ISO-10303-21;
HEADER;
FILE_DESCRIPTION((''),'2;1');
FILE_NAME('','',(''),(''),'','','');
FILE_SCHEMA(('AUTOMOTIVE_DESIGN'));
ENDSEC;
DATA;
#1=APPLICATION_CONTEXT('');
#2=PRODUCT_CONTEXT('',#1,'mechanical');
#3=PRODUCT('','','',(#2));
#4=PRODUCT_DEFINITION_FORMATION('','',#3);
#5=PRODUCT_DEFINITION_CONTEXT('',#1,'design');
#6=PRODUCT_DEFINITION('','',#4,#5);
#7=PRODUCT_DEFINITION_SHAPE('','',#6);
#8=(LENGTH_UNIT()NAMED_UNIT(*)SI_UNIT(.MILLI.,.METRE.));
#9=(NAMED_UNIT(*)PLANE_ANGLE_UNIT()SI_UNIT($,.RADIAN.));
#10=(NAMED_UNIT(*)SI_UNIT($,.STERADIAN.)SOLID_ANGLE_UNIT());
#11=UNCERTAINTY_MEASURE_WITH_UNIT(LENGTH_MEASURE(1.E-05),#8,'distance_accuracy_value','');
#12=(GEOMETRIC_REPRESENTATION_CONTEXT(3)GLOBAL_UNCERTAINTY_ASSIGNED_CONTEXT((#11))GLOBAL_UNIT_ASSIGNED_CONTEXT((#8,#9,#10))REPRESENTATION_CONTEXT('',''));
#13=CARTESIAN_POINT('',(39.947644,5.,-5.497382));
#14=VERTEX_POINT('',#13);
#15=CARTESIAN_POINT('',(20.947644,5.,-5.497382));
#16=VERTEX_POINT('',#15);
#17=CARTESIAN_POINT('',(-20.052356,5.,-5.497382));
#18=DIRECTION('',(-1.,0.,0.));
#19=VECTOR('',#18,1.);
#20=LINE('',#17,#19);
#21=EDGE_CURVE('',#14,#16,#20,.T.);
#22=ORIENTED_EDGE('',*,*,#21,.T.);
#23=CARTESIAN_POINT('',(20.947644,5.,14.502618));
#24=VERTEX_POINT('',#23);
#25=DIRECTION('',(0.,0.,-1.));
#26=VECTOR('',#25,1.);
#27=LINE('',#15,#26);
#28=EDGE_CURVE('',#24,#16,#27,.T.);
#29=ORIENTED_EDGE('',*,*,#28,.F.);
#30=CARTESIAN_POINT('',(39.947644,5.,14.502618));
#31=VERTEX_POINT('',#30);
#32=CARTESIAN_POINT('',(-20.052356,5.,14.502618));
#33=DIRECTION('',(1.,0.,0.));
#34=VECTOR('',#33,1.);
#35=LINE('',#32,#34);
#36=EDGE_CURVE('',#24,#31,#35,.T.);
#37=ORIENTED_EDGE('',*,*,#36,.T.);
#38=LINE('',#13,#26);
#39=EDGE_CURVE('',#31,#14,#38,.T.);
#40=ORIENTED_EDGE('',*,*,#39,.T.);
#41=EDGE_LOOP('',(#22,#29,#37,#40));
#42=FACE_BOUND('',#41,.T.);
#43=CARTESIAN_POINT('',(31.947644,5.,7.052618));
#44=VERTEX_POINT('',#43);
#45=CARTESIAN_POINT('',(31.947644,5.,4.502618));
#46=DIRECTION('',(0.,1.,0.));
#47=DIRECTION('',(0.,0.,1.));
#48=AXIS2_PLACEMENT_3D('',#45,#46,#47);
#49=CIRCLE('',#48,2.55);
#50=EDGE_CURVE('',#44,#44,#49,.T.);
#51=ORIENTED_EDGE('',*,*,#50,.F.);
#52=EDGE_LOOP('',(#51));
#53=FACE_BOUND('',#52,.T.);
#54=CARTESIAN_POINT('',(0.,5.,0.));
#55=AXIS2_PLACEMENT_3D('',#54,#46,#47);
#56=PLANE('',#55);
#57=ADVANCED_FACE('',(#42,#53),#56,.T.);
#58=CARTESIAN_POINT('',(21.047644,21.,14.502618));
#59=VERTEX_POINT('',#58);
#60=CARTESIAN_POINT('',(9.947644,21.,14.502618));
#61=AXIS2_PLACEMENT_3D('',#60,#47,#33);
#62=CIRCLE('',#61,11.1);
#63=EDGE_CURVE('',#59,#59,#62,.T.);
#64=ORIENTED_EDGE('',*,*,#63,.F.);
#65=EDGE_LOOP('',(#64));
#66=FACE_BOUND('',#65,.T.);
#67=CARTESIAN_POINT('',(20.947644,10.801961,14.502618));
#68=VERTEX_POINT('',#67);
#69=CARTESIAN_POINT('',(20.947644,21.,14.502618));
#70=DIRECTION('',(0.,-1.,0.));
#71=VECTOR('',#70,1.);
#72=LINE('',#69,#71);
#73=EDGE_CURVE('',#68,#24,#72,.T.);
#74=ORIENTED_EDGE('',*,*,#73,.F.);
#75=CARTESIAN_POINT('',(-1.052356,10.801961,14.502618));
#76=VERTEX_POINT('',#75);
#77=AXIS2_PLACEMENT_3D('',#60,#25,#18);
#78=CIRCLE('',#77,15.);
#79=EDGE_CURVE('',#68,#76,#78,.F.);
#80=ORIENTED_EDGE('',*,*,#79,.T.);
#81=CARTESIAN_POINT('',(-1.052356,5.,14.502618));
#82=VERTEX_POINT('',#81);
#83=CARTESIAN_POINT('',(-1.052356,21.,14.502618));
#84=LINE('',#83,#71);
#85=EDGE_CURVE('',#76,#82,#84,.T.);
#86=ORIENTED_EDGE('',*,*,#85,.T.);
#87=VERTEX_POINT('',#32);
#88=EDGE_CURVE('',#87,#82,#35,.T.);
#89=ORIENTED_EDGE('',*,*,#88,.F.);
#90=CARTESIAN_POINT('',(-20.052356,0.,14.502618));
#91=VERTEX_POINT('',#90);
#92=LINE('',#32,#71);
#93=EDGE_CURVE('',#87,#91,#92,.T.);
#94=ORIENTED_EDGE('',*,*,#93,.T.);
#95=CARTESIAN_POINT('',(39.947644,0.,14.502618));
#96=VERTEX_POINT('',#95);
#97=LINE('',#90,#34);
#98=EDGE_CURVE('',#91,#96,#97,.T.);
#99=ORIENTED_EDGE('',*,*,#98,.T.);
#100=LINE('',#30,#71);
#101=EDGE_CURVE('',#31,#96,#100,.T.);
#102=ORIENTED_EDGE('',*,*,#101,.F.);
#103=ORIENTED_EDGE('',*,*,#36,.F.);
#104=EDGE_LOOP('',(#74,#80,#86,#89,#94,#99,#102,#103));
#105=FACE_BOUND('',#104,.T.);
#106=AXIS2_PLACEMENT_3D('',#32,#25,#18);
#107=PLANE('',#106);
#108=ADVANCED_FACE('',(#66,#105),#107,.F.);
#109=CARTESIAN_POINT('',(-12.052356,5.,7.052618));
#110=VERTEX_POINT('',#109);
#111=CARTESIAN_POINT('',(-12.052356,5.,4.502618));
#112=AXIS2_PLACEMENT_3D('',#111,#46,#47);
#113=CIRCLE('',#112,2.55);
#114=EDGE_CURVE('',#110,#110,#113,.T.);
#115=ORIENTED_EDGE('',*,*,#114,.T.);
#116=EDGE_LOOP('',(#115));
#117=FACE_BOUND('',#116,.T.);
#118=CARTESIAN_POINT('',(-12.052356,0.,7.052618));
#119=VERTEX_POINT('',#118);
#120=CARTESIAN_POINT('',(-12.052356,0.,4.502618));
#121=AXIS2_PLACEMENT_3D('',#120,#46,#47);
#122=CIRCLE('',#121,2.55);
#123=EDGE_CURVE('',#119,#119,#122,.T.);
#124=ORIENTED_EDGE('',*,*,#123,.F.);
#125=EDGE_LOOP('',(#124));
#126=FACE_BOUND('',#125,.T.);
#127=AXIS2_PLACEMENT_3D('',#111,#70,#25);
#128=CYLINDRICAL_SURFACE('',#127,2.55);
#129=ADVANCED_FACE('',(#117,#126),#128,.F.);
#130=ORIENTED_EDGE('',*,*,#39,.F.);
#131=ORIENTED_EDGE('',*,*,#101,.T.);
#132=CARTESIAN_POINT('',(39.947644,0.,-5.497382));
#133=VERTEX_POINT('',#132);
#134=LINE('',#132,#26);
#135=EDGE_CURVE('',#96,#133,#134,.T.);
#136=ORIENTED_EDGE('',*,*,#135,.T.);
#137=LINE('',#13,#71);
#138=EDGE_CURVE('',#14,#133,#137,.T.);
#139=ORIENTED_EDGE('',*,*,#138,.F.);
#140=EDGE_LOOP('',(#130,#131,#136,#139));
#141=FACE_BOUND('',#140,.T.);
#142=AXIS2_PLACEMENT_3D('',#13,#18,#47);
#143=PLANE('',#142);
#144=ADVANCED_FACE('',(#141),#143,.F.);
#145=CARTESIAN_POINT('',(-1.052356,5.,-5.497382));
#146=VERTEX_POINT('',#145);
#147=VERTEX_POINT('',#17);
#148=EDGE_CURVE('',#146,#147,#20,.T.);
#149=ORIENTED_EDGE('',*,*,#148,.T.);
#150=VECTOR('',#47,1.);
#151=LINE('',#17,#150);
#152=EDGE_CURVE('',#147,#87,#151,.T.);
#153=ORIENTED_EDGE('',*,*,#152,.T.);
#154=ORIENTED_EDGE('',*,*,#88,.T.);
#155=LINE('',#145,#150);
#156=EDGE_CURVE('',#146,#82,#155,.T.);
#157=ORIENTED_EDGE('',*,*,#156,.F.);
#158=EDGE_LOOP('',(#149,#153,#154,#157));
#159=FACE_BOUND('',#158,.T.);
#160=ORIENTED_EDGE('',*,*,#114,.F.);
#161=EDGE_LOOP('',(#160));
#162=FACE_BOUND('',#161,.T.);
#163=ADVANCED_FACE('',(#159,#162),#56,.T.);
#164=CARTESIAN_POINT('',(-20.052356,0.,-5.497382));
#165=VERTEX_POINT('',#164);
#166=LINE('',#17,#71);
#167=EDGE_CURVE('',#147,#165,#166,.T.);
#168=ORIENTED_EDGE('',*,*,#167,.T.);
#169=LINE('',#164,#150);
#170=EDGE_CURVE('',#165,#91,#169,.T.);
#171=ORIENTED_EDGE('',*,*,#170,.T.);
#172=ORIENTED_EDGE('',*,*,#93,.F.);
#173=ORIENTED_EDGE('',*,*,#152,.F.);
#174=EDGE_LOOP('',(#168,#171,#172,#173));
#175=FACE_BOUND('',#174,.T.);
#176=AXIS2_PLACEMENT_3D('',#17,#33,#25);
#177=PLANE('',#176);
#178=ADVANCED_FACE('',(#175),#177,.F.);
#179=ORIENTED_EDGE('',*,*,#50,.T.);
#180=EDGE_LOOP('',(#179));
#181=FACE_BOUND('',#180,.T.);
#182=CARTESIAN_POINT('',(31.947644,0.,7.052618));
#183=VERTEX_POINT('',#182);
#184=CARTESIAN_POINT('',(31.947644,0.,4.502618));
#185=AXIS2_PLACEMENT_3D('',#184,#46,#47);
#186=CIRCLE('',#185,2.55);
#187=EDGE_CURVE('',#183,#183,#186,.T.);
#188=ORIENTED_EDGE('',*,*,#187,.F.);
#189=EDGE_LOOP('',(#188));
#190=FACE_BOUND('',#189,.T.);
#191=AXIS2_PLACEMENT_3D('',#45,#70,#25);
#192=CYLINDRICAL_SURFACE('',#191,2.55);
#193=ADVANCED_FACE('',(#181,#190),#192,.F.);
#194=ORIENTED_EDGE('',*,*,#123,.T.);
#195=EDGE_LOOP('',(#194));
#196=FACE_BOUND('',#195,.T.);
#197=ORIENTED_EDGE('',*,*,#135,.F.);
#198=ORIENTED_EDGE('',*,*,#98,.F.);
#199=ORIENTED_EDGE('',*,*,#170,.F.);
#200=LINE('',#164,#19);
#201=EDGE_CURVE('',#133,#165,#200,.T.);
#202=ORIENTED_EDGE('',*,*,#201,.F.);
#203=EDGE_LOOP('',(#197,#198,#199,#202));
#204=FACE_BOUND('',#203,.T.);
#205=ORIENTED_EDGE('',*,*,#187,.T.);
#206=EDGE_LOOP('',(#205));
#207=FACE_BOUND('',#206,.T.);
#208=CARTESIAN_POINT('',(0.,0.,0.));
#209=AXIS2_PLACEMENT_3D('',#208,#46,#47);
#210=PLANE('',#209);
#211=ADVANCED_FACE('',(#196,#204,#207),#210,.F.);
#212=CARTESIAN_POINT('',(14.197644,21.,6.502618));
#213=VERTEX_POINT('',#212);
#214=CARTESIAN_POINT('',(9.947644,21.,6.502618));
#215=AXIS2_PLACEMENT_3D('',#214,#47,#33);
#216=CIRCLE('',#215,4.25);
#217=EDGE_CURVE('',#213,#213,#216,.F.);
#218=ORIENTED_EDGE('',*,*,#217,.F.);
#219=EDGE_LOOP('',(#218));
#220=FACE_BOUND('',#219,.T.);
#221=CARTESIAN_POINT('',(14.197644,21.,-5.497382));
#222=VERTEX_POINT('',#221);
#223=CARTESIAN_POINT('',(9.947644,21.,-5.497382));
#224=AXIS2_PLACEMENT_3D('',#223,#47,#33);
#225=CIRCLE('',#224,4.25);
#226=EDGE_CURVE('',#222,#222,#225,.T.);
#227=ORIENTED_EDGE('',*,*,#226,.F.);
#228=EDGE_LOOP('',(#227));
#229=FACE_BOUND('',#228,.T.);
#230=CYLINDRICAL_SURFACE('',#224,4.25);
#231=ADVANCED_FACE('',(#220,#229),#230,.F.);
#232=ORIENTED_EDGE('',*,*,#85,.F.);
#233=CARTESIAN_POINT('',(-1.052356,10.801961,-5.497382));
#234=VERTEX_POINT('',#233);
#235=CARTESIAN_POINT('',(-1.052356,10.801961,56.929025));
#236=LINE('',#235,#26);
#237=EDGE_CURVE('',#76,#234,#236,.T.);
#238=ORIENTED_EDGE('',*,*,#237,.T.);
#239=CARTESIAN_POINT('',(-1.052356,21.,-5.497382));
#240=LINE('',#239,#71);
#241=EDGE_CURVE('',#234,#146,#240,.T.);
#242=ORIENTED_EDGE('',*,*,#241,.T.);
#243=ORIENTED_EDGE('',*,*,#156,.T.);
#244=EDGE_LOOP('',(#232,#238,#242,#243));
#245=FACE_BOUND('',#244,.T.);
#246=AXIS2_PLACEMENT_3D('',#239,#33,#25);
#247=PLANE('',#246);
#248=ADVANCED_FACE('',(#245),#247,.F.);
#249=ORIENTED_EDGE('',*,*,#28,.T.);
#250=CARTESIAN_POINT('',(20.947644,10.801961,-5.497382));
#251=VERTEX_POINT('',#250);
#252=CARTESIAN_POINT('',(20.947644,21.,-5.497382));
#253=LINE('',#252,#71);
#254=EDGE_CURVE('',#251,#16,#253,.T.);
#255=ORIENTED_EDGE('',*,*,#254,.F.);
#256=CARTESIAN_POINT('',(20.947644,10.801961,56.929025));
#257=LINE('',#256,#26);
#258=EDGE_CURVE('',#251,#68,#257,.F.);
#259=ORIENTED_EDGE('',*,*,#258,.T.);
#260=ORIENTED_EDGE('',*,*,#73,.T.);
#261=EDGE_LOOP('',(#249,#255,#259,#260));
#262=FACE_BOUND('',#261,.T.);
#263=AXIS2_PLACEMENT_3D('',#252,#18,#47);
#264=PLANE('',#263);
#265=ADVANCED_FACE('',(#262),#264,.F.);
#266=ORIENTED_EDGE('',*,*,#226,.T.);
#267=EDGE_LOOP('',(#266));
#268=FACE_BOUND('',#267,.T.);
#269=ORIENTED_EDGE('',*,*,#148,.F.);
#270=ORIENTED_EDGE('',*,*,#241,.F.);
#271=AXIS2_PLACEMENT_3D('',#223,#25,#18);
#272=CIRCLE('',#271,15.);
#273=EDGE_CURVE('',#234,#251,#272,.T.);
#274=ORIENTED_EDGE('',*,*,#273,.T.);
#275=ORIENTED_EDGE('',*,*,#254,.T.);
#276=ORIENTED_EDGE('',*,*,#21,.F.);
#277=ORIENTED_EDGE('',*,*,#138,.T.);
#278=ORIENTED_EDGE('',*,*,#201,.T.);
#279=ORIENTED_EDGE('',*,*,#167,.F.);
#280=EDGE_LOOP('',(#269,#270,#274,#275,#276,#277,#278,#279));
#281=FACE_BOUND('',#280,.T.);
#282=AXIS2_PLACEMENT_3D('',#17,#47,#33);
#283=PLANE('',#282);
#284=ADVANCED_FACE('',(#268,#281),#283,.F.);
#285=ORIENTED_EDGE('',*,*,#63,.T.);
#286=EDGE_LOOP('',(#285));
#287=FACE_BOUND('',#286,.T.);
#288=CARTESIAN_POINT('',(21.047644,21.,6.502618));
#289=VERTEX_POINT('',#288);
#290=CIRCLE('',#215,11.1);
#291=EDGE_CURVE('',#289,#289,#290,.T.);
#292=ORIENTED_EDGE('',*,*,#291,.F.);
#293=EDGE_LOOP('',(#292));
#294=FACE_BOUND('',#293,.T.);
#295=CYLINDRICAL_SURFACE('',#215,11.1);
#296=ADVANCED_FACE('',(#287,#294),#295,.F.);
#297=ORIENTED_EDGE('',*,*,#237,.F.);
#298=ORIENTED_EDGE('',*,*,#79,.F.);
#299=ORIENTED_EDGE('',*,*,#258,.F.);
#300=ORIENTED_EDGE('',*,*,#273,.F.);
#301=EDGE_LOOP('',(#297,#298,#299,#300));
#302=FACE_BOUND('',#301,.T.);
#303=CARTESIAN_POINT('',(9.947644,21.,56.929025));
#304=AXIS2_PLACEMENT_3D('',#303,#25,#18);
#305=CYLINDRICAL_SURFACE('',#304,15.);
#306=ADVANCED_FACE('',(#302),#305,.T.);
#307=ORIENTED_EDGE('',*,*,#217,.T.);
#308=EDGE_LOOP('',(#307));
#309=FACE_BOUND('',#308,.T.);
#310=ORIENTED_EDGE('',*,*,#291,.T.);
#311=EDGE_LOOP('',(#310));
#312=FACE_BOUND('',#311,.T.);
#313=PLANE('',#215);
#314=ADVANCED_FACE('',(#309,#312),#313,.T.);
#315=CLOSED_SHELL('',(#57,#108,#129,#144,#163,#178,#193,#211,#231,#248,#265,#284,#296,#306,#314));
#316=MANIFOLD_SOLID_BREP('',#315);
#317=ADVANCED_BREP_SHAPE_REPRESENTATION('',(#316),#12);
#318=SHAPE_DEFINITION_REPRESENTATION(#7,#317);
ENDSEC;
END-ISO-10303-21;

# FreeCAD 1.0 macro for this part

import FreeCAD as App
import Part
import Sketcher
from FreeCAD import Vector
Q = App.Units.Quantity

doc = App.newDocument("Part")
body = doc.addObject("PartDesign::Body", "Body")

sketch1 = body.newObject("Sketcher::SketchObject", "Sketch")
sketch1.AttachmentSupport = (doc.getObject("XZ_Plane"), [""])
sketch1.MapMode = "FlatFace"
sketch1.addGeometry(Part.LineSegment(Vector(-20.1, -5.5, 0), Vector(-20.1, 14.5, 0)), False)
sketch1.addGeometry(Part.LineSegment(Vector(-20.1, 14.5, 0), Vector(39.9, 14.5, 0)), False)
sketch1.addGeometry(Part.LineSegment(Vector(39.9, 14.5, 0), Vector(39.9, -5.5, 0)), False)
sketch1.addGeometry(Part.LineSegment(Vector(39.9, -5.5, 0), Vector(-20.1, -5.5, 0)), False)
sketch1.addGeometry(Part.Circle(Vector(-12.1, 4.5, 0), Vector(0, 0, 1), 2.5), False)
sketch1.addGeometry(Part.Circle(Vector(31.9, 4.5, 0), Vector(0, 0, 1), 2.5), False)
sketch1.addConstraint(Sketcher.Constraint("Coincident", 0, 2, 1, 1))
sketch1.addConstraint(Sketcher.Constraint("Coincident", 1, 2, 2, 1))
sketch1.addConstraint(Sketcher.Constraint("Coincident", 2, 2, 3, 1))
sketch1.addConstraint(Sketcher.Constraint("Coincident", 3, 2, 0, 1))
sketch1.addConstraint(Sketcher.Constraint("Vertical", 0))
sketch1.addConstraint(Sketcher.Constraint("Horizontal", 1))
sketch1.addConstraint(Sketcher.Constraint("Vertical", 2))
sketch1.addConstraint(Sketcher.Constraint("Horizontal", 3))
sketch1.addConstraint(Sketcher.Constraint("Equal", 4, 5))
sketch1.addConstraint(Sketcher.Constraint("Horizontal", 4, 3, 5, 3))
sketch1.addConstraint(Sketcher.Constraint("Diameter", 4, Q("5.1 mm")))
sketch1.addConstraint(Sketcher.Constraint("DistanceX", 1, 1, 1, 2, Q("60 mm")))
sketch1.addConstraint(Sketcher.Constraint("DistanceY", 0, 1, 0, 2, Q("20 mm")))
sketch1.addConstraint(Sketcher.Constraint("DistanceX", 4, 3, 5, 3, Q("44 mm")))
sketch1.addConstraint(Sketcher.Constraint("DistanceX", 0, 2, 4, 3, Q("8 mm")))
sketch1.addConstraint(Sketcher.Constraint("DistanceY", 4, 3, 0, 2, Q("10 mm")))
sketch1.addConstraint(Sketcher.Constraint("DistanceX", 4, 3, -1, 1, Q("12.052356 mm")))
sketch1.addConstraint(Sketcher.Constraint("DistanceY", -1, 1, 4, 3, Q("4.502618 mm")))
pad1 = body.newObject("PartDesign::Pad", "Pad")
pad1.Profile = sketch1
pad1.Length = 5
pad1.Reversed = True

sketch2 = body.newObject("Sketcher::SketchObject", "Sketch001")
sketch2.AttachmentSupport = (doc.getObject("XZ_Plane"), [""])
sketch2.MapMode = "FlatFace"
sketch2.AttachmentOffset = App.Placement(Vector(0, 0, -5), App.Rotation())
sketch2.addGeometry(Part.LineSegment(Vector(-1, -5, 0), Vector(-1, 15, 0)), False)
sketch2.addGeometry(Part.LineSegment(Vector(-1, 15, 0), Vector(21, 15, 0)), False)
sketch2.addGeometry(Part.LineSegment(Vector(21, 15, 0), Vector(21, -5, 0)), False)
sketch2.addGeometry(Part.LineSegment(Vector(21, -5, 0), Vector(-1, -5, 0)), False)
sketch2.addConstraint(Sketcher.Constraint("Coincident", 0, 2, 1, 1))
sketch2.addConstraint(Sketcher.Constraint("Coincident", 1, 2, 2, 1))
sketch2.addConstraint(Sketcher.Constraint("Coincident", 2, 2, 3, 1))
sketch2.addConstraint(Sketcher.Constraint("Coincident", 3, 2, 0, 1))
sketch2.addConstraint(Sketcher.Constraint("Vertical", 0))
sketch2.addConstraint(Sketcher.Constraint("Horizontal", 1))
sketch2.addConstraint(Sketcher.Constraint("Vertical", 2))
sketch2.addConstraint(Sketcher.Constraint("Horizontal", 3))
sketch2.addConstraint(Sketcher.Constraint("DistanceX", 1, 1, 1, 2, Q("22 mm")))
sketch2.addConstraint(Sketcher.Constraint("DistanceY", 0, 1, 0, 2, Q("20 mm")))
sketch2.addConstraint(Sketcher.Constraint("DistanceX", 0, 2, -1, 1, Q("1.052356 mm")))
sketch2.addConstraint(Sketcher.Constraint("DistanceY", -1, 1, 0, 2, Q("14.502618 mm")))
pad2 = body.newObject("PartDesign::Pad", "Pad001")
pad2.Profile = sketch2
pad2.Length = 16
pad2.Reversed = True

sketch3 = body.newObject("Sketcher::SketchObject", "Sketch002")
sketch3.AttachmentSupport = (doc.getObject("XY_Plane"), [""])
sketch3.MapMode = "FlatFace"
sketch3.AttachmentOffset = App.Placement(Vector(0, 0, -5.497382), App.Rotation())
sketch3.addGeometry(Part.Circle(Vector(10, 21, 0), Vector(0, 0, 1), 15), False)
sketch3.addConstraint(Sketcher.Constraint("Diameter", 0, Q("30 mm")))
sketch3.addConstraint(Sketcher.Constraint("DistanceY", -1, 1, 0, 3, Q("21 mm")))
sketch3.addConstraint(Sketcher.Constraint("DistanceX", -1, 1, 0, 3, Q("9.947644 mm")))
pad3 = body.newObject("PartDesign::Pad", "Pad002")
pad3.Profile = sketch3
pad3.Length = 20

sketch4 = body.newObject("Sketcher::SketchObject", "Sketch003")
sketch4.AttachmentSupport = (doc.getObject("XY_Plane"), [""])
sketch4.MapMode = "FlatFace"
sketch4.AttachmentOffset = App.Placement(Vector(0, 0, 14.502618), App.Rotation())
sketch4.addGeometry(Part.Circle(Vector(9.9, 21, 0), Vector(0, 0, 1), 4.2), False)
sketch4.addConstraint(Sketcher.Constraint("Diameter", 0, Q("8.5 mm")))
sketch4.addConstraint(Sketcher.Constraint("DistanceY", -1, 1, 0, 3, Q("21 mm")))
sketch4.addConstraint(Sketcher.Constraint("DistanceX", -1, 1, 0, 3, Q("9.947644 mm")))
pocket1 = body.newObject("PartDesign::Pocket", "Pocket")
pocket1.Profile = sketch4
pocket1.Type = "ThroughAll"

sketch5 = body.newObject("Sketcher::SketchObject", "Sketch004")
sketch5.AttachmentSupport = (doc.getObject("XY_Plane"), [""])
sketch5.MapMode = "FlatFace"
sketch5.AttachmentOffset = App.Placement(Vector(0, 0, 14.502618), App.Rotation())
sketch5.addGeometry(Part.Circle(Vector(10, 21, 0), Vector(0, 0, 1), 11), False)
sketch5.addConstraint(Sketcher.Constraint("Diameter", 0, Q("22.2 mm")))
sketch5.addConstraint(Sketcher.Constraint("DistanceY", -1, 1, 0, 3, Q("21 mm")))
sketch5.addConstraint(Sketcher.Constraint("DistanceX", -1, 1, 0, 3, Q("9.947644 mm")))
pocket2 = body.newObject("PartDesign::Pocket", "Pocket001")
pocket2.Profile = sketch5
pocket2.Length = 8

doc.recompute()
